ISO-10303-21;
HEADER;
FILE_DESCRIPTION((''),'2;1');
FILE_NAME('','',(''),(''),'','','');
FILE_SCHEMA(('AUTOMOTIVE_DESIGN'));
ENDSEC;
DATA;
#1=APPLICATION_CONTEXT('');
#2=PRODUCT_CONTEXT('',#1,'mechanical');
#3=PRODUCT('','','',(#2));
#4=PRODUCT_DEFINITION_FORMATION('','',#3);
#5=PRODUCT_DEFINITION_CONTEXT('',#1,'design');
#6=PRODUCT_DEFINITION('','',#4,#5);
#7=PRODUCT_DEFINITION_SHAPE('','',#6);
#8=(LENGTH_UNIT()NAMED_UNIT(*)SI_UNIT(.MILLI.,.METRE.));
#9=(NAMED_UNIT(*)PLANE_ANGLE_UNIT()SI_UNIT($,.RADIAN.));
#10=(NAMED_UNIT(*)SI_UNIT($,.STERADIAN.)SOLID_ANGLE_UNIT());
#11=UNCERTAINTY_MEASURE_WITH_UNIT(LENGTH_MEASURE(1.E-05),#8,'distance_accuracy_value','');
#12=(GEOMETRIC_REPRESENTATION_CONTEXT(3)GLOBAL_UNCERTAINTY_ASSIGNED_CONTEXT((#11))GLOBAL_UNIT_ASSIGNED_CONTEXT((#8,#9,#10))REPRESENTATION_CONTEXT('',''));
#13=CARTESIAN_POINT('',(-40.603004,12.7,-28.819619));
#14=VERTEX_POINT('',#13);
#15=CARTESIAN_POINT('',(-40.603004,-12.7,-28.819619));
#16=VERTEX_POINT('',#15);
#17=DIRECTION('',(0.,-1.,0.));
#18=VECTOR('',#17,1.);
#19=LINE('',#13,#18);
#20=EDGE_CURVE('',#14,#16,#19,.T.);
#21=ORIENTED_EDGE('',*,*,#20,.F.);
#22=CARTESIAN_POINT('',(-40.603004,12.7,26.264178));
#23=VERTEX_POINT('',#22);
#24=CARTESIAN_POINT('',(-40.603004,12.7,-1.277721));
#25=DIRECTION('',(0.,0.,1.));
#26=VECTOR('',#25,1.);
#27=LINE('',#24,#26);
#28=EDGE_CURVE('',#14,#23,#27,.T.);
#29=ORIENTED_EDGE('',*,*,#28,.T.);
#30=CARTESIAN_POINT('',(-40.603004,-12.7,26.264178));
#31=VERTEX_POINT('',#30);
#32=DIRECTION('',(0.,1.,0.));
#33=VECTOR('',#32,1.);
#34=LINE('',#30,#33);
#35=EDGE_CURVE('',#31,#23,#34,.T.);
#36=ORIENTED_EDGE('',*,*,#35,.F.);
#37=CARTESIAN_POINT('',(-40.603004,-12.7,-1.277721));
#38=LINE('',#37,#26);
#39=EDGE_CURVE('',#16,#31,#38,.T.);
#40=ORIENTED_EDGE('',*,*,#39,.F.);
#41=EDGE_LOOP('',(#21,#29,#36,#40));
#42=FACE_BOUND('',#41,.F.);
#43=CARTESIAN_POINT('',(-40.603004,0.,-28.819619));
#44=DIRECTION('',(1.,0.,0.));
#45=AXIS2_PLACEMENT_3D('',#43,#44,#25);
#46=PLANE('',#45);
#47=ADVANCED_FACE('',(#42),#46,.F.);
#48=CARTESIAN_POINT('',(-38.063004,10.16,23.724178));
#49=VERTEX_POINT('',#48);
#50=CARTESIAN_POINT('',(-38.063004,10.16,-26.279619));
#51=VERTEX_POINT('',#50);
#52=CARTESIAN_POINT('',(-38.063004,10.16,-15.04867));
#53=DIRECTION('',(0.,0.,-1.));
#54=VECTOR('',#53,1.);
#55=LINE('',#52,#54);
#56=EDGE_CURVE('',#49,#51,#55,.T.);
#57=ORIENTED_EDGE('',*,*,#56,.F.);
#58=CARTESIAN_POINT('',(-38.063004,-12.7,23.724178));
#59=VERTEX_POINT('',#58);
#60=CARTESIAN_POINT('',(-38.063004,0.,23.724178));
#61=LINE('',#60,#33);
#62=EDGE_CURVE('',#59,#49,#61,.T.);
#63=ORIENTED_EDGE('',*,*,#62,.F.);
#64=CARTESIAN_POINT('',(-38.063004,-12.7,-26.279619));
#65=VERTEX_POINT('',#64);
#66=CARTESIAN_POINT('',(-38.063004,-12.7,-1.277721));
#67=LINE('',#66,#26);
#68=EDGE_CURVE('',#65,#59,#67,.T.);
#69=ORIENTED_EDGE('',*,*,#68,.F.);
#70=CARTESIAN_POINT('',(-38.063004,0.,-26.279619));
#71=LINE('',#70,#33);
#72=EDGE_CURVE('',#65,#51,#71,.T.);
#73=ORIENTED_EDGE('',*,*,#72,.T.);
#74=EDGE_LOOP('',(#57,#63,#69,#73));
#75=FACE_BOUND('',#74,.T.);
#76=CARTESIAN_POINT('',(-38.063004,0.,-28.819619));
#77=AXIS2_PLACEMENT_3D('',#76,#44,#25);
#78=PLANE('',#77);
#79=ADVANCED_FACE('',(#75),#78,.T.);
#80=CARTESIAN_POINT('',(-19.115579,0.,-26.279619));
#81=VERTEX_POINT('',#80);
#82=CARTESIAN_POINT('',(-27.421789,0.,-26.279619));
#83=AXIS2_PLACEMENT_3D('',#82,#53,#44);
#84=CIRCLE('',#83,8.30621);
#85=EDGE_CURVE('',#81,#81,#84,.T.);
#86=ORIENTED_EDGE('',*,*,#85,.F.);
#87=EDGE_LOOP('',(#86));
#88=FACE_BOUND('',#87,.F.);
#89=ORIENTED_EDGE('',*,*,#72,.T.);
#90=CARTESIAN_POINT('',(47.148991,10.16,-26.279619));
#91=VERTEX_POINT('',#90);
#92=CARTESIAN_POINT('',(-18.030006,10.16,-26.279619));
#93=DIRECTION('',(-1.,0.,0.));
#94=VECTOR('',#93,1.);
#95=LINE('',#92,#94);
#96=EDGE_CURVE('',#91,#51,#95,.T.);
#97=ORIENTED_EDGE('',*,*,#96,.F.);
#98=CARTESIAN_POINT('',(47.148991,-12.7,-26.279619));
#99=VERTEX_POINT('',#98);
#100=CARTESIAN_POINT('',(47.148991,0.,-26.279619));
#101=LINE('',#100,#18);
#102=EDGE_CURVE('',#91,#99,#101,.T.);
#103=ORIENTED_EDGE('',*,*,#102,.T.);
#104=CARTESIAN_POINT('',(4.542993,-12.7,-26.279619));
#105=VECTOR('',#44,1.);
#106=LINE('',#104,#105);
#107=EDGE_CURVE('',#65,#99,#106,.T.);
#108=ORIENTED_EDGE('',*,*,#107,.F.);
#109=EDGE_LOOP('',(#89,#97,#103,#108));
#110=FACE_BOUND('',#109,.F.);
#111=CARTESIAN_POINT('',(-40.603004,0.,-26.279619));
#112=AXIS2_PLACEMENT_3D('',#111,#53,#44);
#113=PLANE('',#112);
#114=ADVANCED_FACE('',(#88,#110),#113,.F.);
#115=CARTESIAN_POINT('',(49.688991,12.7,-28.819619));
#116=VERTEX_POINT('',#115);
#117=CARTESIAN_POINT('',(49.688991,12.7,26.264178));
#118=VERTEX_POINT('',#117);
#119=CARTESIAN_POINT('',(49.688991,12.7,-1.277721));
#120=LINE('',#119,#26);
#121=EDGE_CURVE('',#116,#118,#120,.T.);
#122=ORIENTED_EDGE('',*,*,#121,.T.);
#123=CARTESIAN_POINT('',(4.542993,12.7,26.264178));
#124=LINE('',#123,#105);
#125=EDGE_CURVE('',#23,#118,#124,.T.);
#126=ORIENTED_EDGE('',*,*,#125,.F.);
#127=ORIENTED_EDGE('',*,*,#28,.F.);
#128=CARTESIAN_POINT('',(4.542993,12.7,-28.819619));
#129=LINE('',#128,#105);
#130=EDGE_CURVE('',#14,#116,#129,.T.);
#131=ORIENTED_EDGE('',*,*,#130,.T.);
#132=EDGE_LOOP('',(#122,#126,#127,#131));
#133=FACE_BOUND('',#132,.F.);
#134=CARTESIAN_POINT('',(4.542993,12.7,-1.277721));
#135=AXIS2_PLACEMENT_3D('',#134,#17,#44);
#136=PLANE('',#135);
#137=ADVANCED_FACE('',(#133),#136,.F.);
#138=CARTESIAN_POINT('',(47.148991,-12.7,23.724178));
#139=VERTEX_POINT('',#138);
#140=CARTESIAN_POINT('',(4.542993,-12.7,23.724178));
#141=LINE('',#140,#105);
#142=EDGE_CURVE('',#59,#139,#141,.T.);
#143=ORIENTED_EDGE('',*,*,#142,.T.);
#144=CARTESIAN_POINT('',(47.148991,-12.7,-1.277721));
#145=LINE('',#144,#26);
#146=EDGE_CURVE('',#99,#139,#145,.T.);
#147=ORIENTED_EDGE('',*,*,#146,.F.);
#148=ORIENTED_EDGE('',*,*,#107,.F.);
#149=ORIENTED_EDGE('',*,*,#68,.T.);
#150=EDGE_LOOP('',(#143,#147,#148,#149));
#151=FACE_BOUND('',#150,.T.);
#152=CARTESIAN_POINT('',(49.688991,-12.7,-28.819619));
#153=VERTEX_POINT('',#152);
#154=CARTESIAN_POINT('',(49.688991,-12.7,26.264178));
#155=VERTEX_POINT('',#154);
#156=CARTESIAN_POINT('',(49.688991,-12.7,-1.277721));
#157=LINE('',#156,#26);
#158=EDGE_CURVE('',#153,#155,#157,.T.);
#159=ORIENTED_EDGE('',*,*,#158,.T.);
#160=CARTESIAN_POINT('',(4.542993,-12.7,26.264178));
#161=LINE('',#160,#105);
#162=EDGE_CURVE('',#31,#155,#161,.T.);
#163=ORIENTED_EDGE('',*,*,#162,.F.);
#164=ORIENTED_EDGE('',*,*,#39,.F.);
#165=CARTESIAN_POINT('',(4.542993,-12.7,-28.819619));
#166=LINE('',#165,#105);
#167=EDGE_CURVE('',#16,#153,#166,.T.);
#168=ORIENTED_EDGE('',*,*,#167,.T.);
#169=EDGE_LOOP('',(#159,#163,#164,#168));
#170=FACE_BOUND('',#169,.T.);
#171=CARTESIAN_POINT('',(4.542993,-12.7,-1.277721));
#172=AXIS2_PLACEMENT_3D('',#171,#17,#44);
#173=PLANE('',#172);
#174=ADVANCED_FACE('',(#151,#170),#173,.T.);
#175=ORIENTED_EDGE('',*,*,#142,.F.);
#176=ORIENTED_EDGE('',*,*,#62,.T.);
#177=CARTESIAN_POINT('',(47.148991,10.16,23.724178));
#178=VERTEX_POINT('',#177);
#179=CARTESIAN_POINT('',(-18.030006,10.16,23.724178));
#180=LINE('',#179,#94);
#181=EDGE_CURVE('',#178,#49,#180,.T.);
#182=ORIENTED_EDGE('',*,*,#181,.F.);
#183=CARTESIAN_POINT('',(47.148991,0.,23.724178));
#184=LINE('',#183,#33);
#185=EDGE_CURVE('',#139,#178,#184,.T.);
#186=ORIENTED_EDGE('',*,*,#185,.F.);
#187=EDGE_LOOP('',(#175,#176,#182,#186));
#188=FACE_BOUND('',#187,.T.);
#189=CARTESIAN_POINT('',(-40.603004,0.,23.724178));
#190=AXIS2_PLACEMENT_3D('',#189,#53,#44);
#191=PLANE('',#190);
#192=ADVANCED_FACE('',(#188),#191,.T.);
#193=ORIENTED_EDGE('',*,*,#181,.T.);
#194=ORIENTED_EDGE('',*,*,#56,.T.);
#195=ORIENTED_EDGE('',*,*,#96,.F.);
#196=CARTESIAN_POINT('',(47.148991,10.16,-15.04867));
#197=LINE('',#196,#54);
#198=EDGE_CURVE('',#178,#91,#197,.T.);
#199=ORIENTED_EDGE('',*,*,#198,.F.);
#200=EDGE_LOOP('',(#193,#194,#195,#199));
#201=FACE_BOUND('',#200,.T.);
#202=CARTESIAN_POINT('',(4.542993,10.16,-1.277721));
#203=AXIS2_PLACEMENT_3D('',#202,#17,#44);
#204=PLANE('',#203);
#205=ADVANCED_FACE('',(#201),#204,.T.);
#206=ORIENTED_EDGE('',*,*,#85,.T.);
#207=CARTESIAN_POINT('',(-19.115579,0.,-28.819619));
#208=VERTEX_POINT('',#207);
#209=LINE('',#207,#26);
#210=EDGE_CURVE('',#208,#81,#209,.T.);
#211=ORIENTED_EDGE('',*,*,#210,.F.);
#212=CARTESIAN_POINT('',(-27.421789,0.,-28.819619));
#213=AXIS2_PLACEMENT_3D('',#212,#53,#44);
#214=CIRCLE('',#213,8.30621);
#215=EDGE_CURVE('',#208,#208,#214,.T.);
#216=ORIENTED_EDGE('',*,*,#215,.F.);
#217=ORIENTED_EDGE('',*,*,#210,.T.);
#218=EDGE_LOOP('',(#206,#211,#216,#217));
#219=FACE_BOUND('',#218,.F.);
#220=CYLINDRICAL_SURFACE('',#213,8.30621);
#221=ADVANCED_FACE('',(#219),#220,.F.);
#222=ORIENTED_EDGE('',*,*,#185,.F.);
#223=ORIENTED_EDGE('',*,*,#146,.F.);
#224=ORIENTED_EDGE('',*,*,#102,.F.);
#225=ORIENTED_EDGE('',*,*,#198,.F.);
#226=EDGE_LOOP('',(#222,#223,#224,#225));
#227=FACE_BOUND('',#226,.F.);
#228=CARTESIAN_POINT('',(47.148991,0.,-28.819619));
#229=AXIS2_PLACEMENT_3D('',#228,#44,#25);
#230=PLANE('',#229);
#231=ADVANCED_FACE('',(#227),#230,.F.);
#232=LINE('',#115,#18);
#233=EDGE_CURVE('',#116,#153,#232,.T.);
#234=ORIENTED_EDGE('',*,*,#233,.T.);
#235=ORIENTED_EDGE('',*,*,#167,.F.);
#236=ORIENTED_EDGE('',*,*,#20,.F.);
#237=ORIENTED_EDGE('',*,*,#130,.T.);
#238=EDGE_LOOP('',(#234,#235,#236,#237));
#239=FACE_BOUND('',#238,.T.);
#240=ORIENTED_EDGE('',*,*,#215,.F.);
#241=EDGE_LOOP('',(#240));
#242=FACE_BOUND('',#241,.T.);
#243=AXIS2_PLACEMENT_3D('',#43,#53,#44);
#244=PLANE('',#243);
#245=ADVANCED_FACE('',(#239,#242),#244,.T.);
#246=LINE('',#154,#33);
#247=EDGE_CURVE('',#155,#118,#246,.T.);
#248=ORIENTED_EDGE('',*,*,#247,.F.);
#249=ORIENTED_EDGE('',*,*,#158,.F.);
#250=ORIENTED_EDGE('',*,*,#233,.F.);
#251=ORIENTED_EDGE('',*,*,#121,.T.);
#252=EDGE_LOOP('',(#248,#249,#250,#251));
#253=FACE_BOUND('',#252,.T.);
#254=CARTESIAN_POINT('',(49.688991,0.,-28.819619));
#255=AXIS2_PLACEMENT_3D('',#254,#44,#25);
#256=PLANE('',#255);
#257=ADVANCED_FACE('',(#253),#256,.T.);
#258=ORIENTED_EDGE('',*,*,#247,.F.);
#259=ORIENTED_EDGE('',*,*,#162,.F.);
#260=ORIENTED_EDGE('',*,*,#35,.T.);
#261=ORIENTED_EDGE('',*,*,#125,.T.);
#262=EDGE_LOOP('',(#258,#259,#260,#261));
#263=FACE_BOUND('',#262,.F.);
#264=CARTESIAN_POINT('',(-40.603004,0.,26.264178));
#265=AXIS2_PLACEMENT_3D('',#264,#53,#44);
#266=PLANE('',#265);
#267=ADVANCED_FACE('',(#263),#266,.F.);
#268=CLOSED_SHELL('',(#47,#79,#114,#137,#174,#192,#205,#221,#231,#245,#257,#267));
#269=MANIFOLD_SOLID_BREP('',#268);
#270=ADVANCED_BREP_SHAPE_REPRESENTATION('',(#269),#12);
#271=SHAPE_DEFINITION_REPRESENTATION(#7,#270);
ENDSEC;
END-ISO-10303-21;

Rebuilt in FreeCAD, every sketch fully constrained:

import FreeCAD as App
import Part
import Sketcher
from FreeCAD import Vector


def faces_at(feature, points):
    """Names of the faces that lie closest to the given points."""
    faces = feature.Shape.Faces
    near = lambda p: min(range(len(faces)), key=lambda i: faces[i].distToShape(Part.Vertex(*p))[0])
    return sorted({f"Face{near(p) + 1}" for p in points})

doc = App.newDocument("Part")
params = doc.addObject("Spreadsheet::Sheet", "Params")
for row, (alias, value) in enumerate([
    ("pad1_length", "1 in"),
    ("thickness_wall", "0.1 in"),
    ("pocket1_length", "1 in"),
], start=1):
    params.set(f"A{row}", alias)
    params.set(f"B{row}", "=" + value)
    params.setAlias(f"B{row}", alias)

body = doc.addObject("PartDesign::Body", "Body")

# Sketch on XZ plane
sketch1 = body.newObject("Sketcher::SketchObject", "Sketch")
sketch1.AttachmentSupport = (doc.getObject("XZ_Plane"), [""])
sketch1.MapMode = "FlatFace"
sketch1.addGeometry([
    Part.LineSegment(Vector(-41, 26, 0), Vector(-41, -29, 0)),
    Part.LineSegment(Vector(-41, -29, 0), Vector(50, -29, 0)),
    Part.LineSegment(Vector(50, -29, 0), Vector(50, 26, 0)),
    Part.LineSegment(Vector(50, 26, 0), Vector(-41, 26, 0)),
], False)
sketch1.addConstraint([
    Sketcher.Constraint("Coincident", 0, 2, 1, 1),
    Sketcher.Constraint("Coincident", 1, 2, 2, 1),
    Sketcher.Constraint("Coincident", 2, 2, 3, 1),
    Sketcher.Constraint("Coincident", 3, 2, 0, 1),
    Sketcher.Constraint("Vertical", 0),
    Sketcher.Constraint("Horizontal", 1),
    Sketcher.Constraint("Vertical", 2),
    Sketcher.Constraint("Horizontal", 3),
    Sketcher.Constraint("DistanceX", 1, 1, 1, 2, 90.291996),
    Sketcher.Constraint("DistanceY", 0, 2, 0, 1, 55.083796),
    Sketcher.Constraint("DistanceY", 0, 2, -1, 1, 28.819619),
    Sketcher.Constraint("DistanceX", -1, 1, 1, 2, 49.688991),
])
pad1 = body.newObject("PartDesign::Pad", "Pad")
pad1.Profile = sketch1
pad1.setExpression("Length", "Params.pad1_length")
pad1.Midplane = True
doc.recompute()

thickness = body.newObject("PartDesign::Thickness", "Thickness")
thickness.Base = (pad1, faces_at(pad1, [(4.543, -12.7, -1.278)]))
thickness.setExpression("Value", "Params.thickness_wall")
thickness.Reversed = True
thickness.Join = "Arc"

# Sketch on XY plane
sketch2 = body.newObject("Sketcher::SketchObject", "Sketch001")
sketch2.AttachmentSupport = (doc.getObject("XY_Plane"), [""])
sketch2.MapMode = "FlatFace"
sketch2.AttachmentOffset = App.Placement(Vector(0, 0, -28.819619), App.Rotation())
sketch2.addGeometry(Part.Circle(Vector(-27, 0, 0), Vector(0, 0, 1), 8), False)
sketch2.addConstraint([
    Sketcher.Constraint("PointOnObject", 0, 3, -1),
    Sketcher.Constraint("Diameter", 0, 16.61242),
    Sketcher.Constraint("DistanceX", 0, 3, -1, 1, 27.421789),
])
pocket1 = body.newObject("PartDesign::Pocket", "Pocket")
pocket1.Profile = sketch2
pocket1.setExpression("Length", "Params.pocket1_length")
pocket1.Reversed = True

doc.recompute()
